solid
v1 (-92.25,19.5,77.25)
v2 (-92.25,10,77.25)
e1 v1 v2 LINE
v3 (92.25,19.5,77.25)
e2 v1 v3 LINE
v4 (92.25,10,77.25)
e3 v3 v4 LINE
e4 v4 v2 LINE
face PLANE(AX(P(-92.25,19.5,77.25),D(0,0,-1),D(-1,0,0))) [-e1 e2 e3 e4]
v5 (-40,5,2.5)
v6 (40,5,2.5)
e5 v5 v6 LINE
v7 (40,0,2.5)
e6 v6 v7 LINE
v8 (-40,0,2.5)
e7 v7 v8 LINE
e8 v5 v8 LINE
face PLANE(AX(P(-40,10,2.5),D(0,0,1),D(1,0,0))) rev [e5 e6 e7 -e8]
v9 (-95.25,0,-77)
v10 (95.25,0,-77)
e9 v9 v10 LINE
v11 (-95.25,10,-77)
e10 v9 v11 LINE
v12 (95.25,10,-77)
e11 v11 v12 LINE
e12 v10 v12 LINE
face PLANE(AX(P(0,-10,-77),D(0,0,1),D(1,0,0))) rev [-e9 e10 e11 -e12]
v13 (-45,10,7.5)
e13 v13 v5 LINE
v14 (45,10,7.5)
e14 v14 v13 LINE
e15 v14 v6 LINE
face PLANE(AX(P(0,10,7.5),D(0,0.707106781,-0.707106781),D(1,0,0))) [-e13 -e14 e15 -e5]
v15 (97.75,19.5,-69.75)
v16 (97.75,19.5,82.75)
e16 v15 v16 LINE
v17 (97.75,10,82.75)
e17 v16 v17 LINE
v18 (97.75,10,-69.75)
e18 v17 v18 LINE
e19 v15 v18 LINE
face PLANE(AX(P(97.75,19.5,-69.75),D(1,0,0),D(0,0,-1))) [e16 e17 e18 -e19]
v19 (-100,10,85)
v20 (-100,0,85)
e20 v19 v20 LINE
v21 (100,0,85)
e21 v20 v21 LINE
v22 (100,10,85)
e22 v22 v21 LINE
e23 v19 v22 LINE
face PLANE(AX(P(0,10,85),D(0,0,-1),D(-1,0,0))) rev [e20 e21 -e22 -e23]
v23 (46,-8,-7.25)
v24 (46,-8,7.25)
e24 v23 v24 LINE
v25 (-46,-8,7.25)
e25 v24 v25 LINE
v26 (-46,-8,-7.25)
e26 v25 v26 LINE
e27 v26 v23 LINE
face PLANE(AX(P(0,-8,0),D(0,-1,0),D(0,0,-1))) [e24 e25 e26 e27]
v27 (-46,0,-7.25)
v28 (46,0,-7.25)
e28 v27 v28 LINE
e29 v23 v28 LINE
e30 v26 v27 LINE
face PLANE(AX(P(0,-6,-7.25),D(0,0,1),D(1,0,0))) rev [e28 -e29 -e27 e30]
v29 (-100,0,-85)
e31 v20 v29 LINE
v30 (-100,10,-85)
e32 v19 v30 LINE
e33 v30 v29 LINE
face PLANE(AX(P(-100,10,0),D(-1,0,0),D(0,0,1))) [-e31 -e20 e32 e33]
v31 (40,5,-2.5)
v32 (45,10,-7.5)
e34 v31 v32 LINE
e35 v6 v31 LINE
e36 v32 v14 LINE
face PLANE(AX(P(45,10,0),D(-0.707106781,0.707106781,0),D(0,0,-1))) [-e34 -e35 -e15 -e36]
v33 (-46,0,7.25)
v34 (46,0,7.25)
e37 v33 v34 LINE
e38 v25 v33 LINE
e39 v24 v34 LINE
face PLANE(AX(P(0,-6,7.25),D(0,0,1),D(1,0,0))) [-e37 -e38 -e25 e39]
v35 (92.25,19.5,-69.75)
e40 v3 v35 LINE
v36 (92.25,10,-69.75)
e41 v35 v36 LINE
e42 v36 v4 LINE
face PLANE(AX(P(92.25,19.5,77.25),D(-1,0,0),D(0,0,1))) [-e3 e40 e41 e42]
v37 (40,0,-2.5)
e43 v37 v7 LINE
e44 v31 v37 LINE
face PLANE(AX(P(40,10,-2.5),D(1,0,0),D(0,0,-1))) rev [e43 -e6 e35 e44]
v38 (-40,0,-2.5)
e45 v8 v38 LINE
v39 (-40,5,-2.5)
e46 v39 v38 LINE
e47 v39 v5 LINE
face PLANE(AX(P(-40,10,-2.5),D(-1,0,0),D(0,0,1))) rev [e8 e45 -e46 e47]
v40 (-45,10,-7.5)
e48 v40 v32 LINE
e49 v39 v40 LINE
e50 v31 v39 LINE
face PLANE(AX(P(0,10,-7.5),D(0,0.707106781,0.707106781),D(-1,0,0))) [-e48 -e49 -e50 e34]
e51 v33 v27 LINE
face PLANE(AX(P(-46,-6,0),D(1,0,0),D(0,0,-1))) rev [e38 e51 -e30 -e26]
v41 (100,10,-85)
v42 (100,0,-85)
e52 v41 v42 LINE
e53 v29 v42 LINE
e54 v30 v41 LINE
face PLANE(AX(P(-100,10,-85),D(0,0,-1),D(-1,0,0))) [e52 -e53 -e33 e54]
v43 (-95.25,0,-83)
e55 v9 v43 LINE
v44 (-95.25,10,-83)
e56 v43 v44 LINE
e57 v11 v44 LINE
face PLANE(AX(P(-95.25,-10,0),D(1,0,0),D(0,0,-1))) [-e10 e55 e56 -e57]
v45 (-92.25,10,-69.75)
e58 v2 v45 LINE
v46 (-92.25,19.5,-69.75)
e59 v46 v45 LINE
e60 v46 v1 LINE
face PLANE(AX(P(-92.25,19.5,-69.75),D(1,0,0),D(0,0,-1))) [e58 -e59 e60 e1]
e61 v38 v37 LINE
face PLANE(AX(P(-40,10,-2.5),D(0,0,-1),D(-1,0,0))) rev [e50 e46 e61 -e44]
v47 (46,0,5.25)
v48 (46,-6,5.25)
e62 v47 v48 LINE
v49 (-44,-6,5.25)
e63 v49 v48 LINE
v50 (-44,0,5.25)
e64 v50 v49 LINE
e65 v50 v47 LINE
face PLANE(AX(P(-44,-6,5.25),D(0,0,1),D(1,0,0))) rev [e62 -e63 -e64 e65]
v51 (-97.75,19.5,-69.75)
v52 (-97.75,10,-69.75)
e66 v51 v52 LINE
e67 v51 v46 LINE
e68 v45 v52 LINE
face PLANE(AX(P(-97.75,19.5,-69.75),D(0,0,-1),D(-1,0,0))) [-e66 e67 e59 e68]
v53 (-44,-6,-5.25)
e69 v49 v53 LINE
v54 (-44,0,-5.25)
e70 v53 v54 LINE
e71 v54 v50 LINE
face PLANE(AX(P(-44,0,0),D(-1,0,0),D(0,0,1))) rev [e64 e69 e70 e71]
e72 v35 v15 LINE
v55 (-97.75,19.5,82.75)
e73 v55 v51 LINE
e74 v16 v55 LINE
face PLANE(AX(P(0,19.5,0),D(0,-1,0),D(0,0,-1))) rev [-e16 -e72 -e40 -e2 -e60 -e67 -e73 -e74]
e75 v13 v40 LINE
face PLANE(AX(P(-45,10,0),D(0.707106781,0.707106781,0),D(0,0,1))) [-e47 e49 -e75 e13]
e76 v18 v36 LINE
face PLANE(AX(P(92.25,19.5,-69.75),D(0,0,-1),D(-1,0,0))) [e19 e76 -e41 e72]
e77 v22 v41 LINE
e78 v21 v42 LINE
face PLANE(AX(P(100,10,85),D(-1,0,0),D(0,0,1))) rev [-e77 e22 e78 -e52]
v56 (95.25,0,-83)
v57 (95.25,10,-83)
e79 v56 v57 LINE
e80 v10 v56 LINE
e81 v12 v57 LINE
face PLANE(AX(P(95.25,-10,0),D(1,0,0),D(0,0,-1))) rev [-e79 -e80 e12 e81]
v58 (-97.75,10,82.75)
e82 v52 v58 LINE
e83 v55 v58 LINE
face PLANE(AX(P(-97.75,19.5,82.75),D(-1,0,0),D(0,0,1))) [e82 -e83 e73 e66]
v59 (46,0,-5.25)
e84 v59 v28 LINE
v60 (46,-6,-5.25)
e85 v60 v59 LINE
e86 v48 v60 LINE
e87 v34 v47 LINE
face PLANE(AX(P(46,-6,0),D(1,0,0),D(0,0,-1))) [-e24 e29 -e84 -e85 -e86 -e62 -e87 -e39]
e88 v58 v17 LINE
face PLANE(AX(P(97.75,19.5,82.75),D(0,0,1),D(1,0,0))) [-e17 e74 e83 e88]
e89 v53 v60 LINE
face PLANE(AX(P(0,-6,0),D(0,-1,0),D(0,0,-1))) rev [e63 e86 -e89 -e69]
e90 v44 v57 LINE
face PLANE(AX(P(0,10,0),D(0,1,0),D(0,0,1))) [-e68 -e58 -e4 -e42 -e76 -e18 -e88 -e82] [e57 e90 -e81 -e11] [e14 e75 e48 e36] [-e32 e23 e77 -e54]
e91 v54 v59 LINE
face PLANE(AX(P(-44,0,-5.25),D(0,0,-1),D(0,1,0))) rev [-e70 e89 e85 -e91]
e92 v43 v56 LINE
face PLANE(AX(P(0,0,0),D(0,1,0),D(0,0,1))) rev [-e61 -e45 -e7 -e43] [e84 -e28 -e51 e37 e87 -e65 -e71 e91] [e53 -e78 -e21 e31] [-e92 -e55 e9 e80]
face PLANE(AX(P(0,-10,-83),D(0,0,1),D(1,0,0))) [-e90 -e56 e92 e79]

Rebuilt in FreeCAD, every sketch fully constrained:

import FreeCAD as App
import Part
import Sketcher

V = App.Vector
Q = App.Units.Quantity


def edges_at(feature, points):
    """Names of the edges that pass closest to the given points."""
    edges = feature.Shape.Edges
    near = lambda p: min(range(len(edges)), key=lambda i: edges[i].distToShape(Part.Vertex(*p))[0])
    return sorted({f"Edge{near(p) + 1}" for p in points})

doc = App.newDocument("Part")
params = doc.addObject("Spreadsheet::Sheet", "Params")
for row, (alias, value) in enumerate([
    ("sketch1_width", "200 mm"),
    ("sketch1_height", "170 mm"),
    ("pad1_length", "10 mm"),
    ("sketch2_height", "147 mm"),
    ("sketch2_width", "5.5 mm"),
    ("sketch2_width2", "184.5 mm"),
    ("sketch2_height2", "152.5 mm"),
    ("pad2_length", "19.5 mm"),
    ("sketch3_height", "6 mm"),
    ("sketch3_width", "190.5 mm"),
    ("pocket1_length", "20 mm"),
    ("sketch4_width", "80 mm"),
    ("sketch4_height", "5 mm"),
    ("pocket2_length", "10 mm"),
    ("chamfer_size", "5 mm"),
    ("sketch5_width", "92 mm"),
    ("sketch5_width2", "86 mm"),
    ("sketch5_height", "14.5 mm"),
    ("sketch5_height2", "8.5 mm"),
    ("pad3_length", "6 mm"),
    ("sketch6_width", "92 mm"),
    ("sketch6_height", "14.5 mm"),
    ("pad4_length", "2 mm"),
    ("sketch7_width", "6 mm"),
    ("sketch7_height", "10.5 mm"),
    ("pocket3_length", "90 mm"),
], start=1):
    params.set(f"A{row}", alias)
    params.set(f"B{row}", "=" + value)
    params.setAlias(f"B{row}", alias)

body = doc.addObject("PartDesign::Body", "Body")

# Sketch on XZ plane
sketch1 = doc.addObject("Sketcher::SketchObject", "Sketch")
body.addObject(sketch1)
sketch1.AttachmentSupport = (doc.XZ_Plane, [""])
sketch1.MapMode = "FlatFace"
sketch1.addGeometry([
    Part.LineSegment(V(-100, -85, 0), V(-100, 85, 0)),
    Part.LineSegment(V(-100, 85, 0), V(100, 85, 0)),
    Part.LineSegment(V(100, 85, 0), V(100, -85, 0)),
    Part.LineSegment(V(100, -85, 0), V(-100, -85, 0)),
], False)
sketch1.addConstraint([
    Sketcher.Constraint("Coincident", 0, 2, 1, 1),
    Sketcher.Constraint("Coincident", 1, 2, 2, 1),
    Sketcher.Constraint("Coincident", 2, 2, 3, 1),
    Sketcher.Constraint("Coincident", 3, 2, 0, 1),
    Sketcher.Constraint("Vertical", 0),
    Sketcher.Constraint("Horizontal", 1),
    Sketcher.Constraint("Vertical", 2),
    Sketcher.Constraint("Horizontal", 3),
    Sketcher.Constraint("Symmetric", 0, 2, 2, 2, -1, 1),
    Sketcher.Constraint("DistanceX", 1, 1, 1, 2, Q("200 mm")),
    Sketcher.Constraint("DistanceY", 0, 1, 0, 2, Q("170 mm")),
])
sketch1.setExpression("Constraints[9]", "Params.sketch1_width")
sketch1.setExpression("Constraints[10]", "Params.sketch1_height")
pad1 = doc.addObject("PartDesign::Pad", "Pad")
body.addObject(pad1)
pad1.Profile = sketch1
pad1.setExpression("Length", "Params.pad1_length")
pad1.Reversed = True

# Sketch on XZ plane
sketch2 = doc.addObject("Sketcher::SketchObject", "Sketch001")
body.addObject(sketch2)
sketch2.AttachmentSupport = (doc.XZ_Plane, [""])
sketch2.MapMode = "FlatFace"
sketch2.addGeometry([
    Part.LineSegment(V(98, 83, 0), V(98, -70, 0)),  # 0
    Part.LineSegment(V(98, -70, 0), V(92, -70, 0)),  # 1
    Part.LineSegment(V(92, -70, 0), V(92, 77, 0)),  # 2
    Part.LineSegment(V(92, 77, 0), V(-92, 77, 0)),  # 3
    Part.LineSegment(V(-92, 77, 0), V(-92, -70, 0)),  # 4
    Part.LineSegment(V(-92, -70, 0), V(-98, -70, 0)),  # 5
    Part.LineSegment(V(-98, -70, 0), V(-98, 83, 0)),  # 6
    Part.LineSegment(V(-98, 83, 0), V(98, 83, 0)),  # 7
], False)
sketch2.addConstraint([
    Sketcher.Constraint("Coincident", 0, 2, 1, 1),
    Sketcher.Constraint("Coincident", 1, 2, 2, 1),
    Sketcher.Constraint("Coincident", 2, 2, 3, 1),
    Sketcher.Constraint("Coincident", 3, 2, 4, 1),
    Sketcher.Constraint("Coincident", 4, 2, 5, 1),
    Sketcher.Constraint("Coincident", 5, 2, 6, 1),
    Sketcher.Constraint("Coincident", 6, 2, 7, 1),
    Sketcher.Constraint("Coincident", 7, 2, 0, 1),
    Sketcher.Constraint("Vertical", 0),
    Sketcher.Constraint("Horizontal", 1),
    Sketcher.Constraint("Vertical", 2),
    Sketcher.Constraint("Horizontal", 3),
    Sketcher.Constraint("Vertical", 4),
    Sketcher.Constraint("Horizontal", 5),
    Sketcher.Constraint("Vertical", 6),
    Sketcher.Constraint("Horizontal", 7),
    Sketcher.Constraint("Symmetric", 1, 2, 4, 2, -2),
    Sketcher.Constraint("Equal", 1, 5),
    Sketcher.Constraint("DistanceY", 2, 1, 2, 2, Q("147 mm")),
    Sketcher.Constraint("DistanceX", 1, 2, 1, 1, Q("5.5 mm")),
    Sketcher.Constraint("DistanceX", 3, 2, 3, 1, Q("184.5 mm")),
    Sketcher.Constraint("DistanceY", 0, 2, 0, 1, Q("152.5 mm")),
    Sketcher.Constraint("DistanceY", 0, 2, -1, 1, Q("69.75 mm")),
])
sketch2.setExpression("Constraints[18]", "Params.sketch2_height")
sketch2.setExpression("Constraints[19]", "Params.sketch2_width")
sketch2.setExpression("Constraints[20]", "Params.sketch2_width2")
sketch2.setExpression("Constraints[21]", "Params.sketch2_height2")
pad2 = doc.addObject("PartDesign::Pad", "Pad001")
body.addObject(pad2)
pad2.Profile = sketch2
pad2.setExpression("Length", "Params.pad2_length")
pad2.Reversed = True

# Sketch on XZ plane
sketch3 = doc.addObject("Sketcher::SketchObject", "Sketch002")
body.addObject(sketch3)
sketch3.AttachmentSupport = (doc.XZ_Plane, [""])
sketch3.MapMode = "FlatFace"
sketch3.AttachmentOffset = App.Placement(V(0, 0, -10), App.Rotation())
sketch3.addGeometry([
    Part.LineSegment(V(-95, -83, 0), V(-95, -77, 0)),
    Part.LineSegment(V(-95, -77, 0), V(95, -77, 0)),
    Part.LineSegment(V(95, -77, 0), V(95, -83, 0)),
    Part.LineSegment(V(95, -83, 0), V(-95, -83, 0)),
], False)
sketch3.addConstraint([
    Sketcher.Constraint("Coincident", 0, 2, 1, 1),
    Sketcher.Constraint("Coincident", 1, 2, 2, 1),
    Sketcher.Constraint("Coincident", 2, 2, 3, 1),
    Sketcher.Constraint("Coincident", 3, 2, 0, 1),
    Sketcher.Constraint("Vertical", 0),
    Sketcher.Constraint("Horizontal", 1),
    Sketcher.Constraint("Vertical", 2),
    Sketcher.Constraint("Horizontal", 3),
    Sketcher.Constraint("DistanceY", 0, 1, 0, 2, Q("6 mm")),
    Sketcher.Constraint("DistanceX", 1, 1, 1, 2, Q("190.5 mm")),
    Sketcher.Constraint("DistanceY", 0, 2, -1, 1, Q("77 mm")),
    Sketcher.Constraint("DistanceX", 0, 2, -1, 1, Q("95.25 mm")),
])
sketch3.setExpression("Constraints[8]", "Params.sketch3_height")
sketch3.setExpression("Constraints[9]", "Params.sketch3_width")
pocket1 = doc.addObject("PartDesign::Pocket", "Pocket")
body.addObject(pocket1)
pocket1.Profile = sketch3
pocket1.setExpression("Length", "Params.pocket1_length")
pocket1.Reversed = True

# Sketch on XZ plane
sketch4 = doc.addObject("Sketcher::SketchObject", "Sketch003")
body.addObject(sketch4)
sketch4.AttachmentSupport = (doc.XZ_Plane, [""])
sketch4.MapMode = "FlatFace"
sketch4.addGeometry([
    Part.LineSegment(V(-40, 2, 0), V(-40, -2, 0)),
    Part.LineSegment(V(-40, -2, 0), V(40, -2, 0)),
    Part.LineSegment(V(40, -2, 0), V(40, 2, 0)),
    Part.LineSegment(V(40, 2, 0), V(-40, 2, 0)),
], False)
sketch4.addConstraint([
    Sketcher.Constraint("Coincident", 0, 2, 1, 1),
    Sketcher.Constraint("Coincident", 1, 2, 2, 1),
    Sketcher.Constraint("Coincident", 2, 2, 3, 1),
    Sketcher.Constraint("Coincident", 3, 2, 0, 1),
    Sketcher.Constraint("Vertical", 0),
    Sketcher.Constraint("Horizontal", 1),
    Sketcher.Constraint("Vertical", 2),
    Sketcher.Constraint("Horizontal", 3),
    Sketcher.Constraint("Symmetric", 0, 2, 2, 2, -1, 1),
    Sketcher.Constraint("DistanceX", 1, 1, 1, 2, Q("80 mm")),
    Sketcher.Constraint("DistanceY", 0, 2, 0, 1, Q("5 mm")),
])
sketch4.setExpression("Constraints[9]", "Params.sketch4_width")
sketch4.setExpression("Constraints[10]", "Params.sketch4_height")
pocket2 = doc.addObject("PartDesign::Pocket", "Pocket001")
body.addObject(pocket2)
pocket2.Profile = sketch4
pocket2.setExpression("Length", "Params.pocket2_length")
doc.recompute()

chamfer = doc.addObject("PartDesign::Chamfer", "Chamfer")
body.addObject(chamfer)
chamfer.Base = (pocket2, edges_at(pocket2, [
    (0, 10, -2.5),
    (-40, 10, 0),
    (0, 10, 2.5),
    (40, 10, 0),
]))
chamfer.setExpression("Size", "Params.chamfer_size")

# Sketch on XZ plane
sketch5 = doc.addObject("Sketcher::SketchObject", "Sketch004")
body.addObject(sketch5)
sketch5.AttachmentSupport = (doc.XZ_Plane, [""])
sketch5.MapMode = "FlatFace"
sketch5.addGeometry([
    Part.LineSegment(V(-46, 7, 0), V(-46, -7, 0)),  # 0
    Part.LineSegment(V(-46, -7, 0), V(46, -7, 0)),  # 1
    Part.LineSegment(V(46, -7, 0), V(46, 7, 0)),  # 2
    Part.LineSegment(V(46, 7, 0), V(-46, 7, 0)),  # 3
    Part.LineSegment(V(43, -4, 0), V(-43, -4, 0)),  # 4
    Part.LineSegment(V(-43, -4, 0), V(-43, 4, 0)),  # 5
    Part.LineSegment(V(-43, 4, 0), V(43, 4, 0)),  # 6
    Part.LineSegment(V(43, 4, 0), V(43, -4, 0)),  # 7
], False)
sketch5.addConstraint([
    Sketcher.Constraint("Coincident", 0, 2, 1, 1),
    Sketcher.Constraint("Coincident", 1, 2, 2, 1),
    Sketcher.Constraint("Coincident", 2, 2, 3, 1),
    Sketcher.Constraint("Coincident", 3, 2, 0, 1),
    Sketcher.Constraint("Coincident", 4, 2, 5, 1),
    Sketcher.Constraint("Coincident", 5, 2, 6, 1),
    Sketcher.Constraint("Coincident", 6, 2, 7, 1),
    Sketcher.Constraint("Coincident", 7, 2, 4, 1),
    Sketcher.Constraint("Vertical", 0),
    Sketcher.Constraint("Horizontal", 1),
    Sketcher.Constraint("Vertical", 2),
    Sketcher.Constraint("Horizontal", 3),
    Sketcher.Constraint("Horizontal", 4),
    Sketcher.Constraint("Vertical", 5),
    Sketcher.Constraint("Horizontal", 6),
    Sketcher.Constraint("Vertical", 7),
    Sketcher.Constraint("Symmetric", 0, 2, 2, 2, -1, 1),
    Sketcher.Constraint("Symmetric", 4, 2, 6, 2, -1, 1),
    Sketcher.Constraint("DistanceX", 1, 1, 1, 2, Q("92 mm")),
    Sketcher.Constraint("DistanceX", 4, 2, 4, 1, Q("86 mm")),
    Sketcher.Constraint("DistanceY", 0, 2, 0, 1, Q("14.5 mm")),
    Sketcher.Constraint("DistanceY", 5, 1, 5, 2, Q("8.5 mm")),
])
sketch5.setExpression("Constraints[18]", "Params.sketch5_width")
sketch5.setExpression("Constraints[19]", "Params.sketch5_width2")
sketch5.setExpression("Constraints[20]", "Params.sketch5_height")
sketch5.setExpression("Constraints[21]", "Params.sketch5_height2")
pad3 = doc.addObject("PartDesign::Pad", "Pad002")
body.addObject(pad3)
pad3.Profile = sketch5
pad3.setExpression("Length", "Params.pad3_length")

# Sketch on XZ plane
sketch6 = doc.addObject("Sketcher::SketchObject", "Sketch005")
body.addObject(sketch6)
sketch6.AttachmentSupport = (doc.XZ_Plane, [""])
sketch6.MapMode = "FlatFace"
sketch6.AttachmentOffset = App.Placement(V(0, 0, 6), App.Rotation())
sketch6.addGeometry([
    Part.LineSegment(V(-46, 7, 0), V(-46, -7, 0)),
    Part.LineSegment(V(-46, -7, 0), V(46, -7, 0)),
    Part.LineSegment(V(46, -7, 0), V(46, 7, 0)),
    Part.LineSegment(V(46, 7, 0), V(-46, 7, 0)),
], False)
sketch6.addConstraint([
    Sketcher.Constraint("Coincident", 0, 2, 1, 1),
    Sketcher.Constraint("Coincident", 1, 2, 2, 1),
    Sketcher.Constraint("Coincident", 2, 2, 3, 1),
    Sketcher.Constraint("Coincident", 3, 2, 0, 1),
    Sketcher.Constraint("Vertical", 0),
    Sketcher.Constraint("Horizontal", 1),
    Sketcher.Constraint("Vertical", 2),
    Sketcher.Constraint("Horizontal", 3),
    Sketcher.Constraint("Symmetric", 0, 2, 2, 2, -1, 1),
    Sketcher.Constraint("DistanceX", 1, 1, 1, 2, Q("92 mm")),
    Sketcher.Constraint("DistanceY", 0, 2, 0, 1, Q("14.5 mm")),
])
sketch6.setExpression("Constraints[9]", "Params.sketch6_width")
sketch6.setExpression("Constraints[10]", "Params.sketch6_height")
pad4 = doc.addObject("PartDesign::Pad", "Pad003")
body.addObject(pad4)
pad4.Profile = sketch6
pad4.setExpression("Length", "Params.pad4_length")

# Sketch on YZ plane
sketch7 = doc.addObject("Sketcher::SketchObject", "Sketch006")
body.addObject(sketch7)
sketch7.AttachmentSupport = (doc.YZ_Plane, [""])
sketch7.MapMode = "FlatFace"
sketch7.AttachmentOffset = App.Placement(V(0, 0, 46), App.Rotation())
sketch7.addGeometry([
    Part.LineSegment(V(-6, -5, 0), V(0, -5, 0)),
    Part.LineSegment(V(0, -5, 0), V(0, 5, 0)),
    Part.LineSegment(V(0, 5, 0), V(-6, 5, 0)),
    Part.LineSegment(V(-6, 5, 0), V(-6, -5, 0)),
], False)
sketch7.addConstraint([
    Sketcher.Constraint("Coincident", 0, 2, 1, 1),
    Sketcher.Constraint("Coincident", 1, 2, 2, 1),
    Sketcher.Constraint("Coincident", 2, 2, 3, 1),
    Sketcher.Constraint("Coincident", 3, 2, 0, 1),
    Sketcher.Constraint("Horizontal", 0),
    Sketcher.Constraint("Vertical", 1),
    Sketcher.Constraint("Horizontal", 2),
    Sketcher.Constraint("Vertical", 3),
    Sketcher.Constraint("Symmetric", 0, 2, 1, 2, -1, 1),
    Sketcher.Constraint("DistanceX", 0, 1, 0, 2, Q("6 mm")),
    Sketcher.Constraint("DistanceY", 1, 1, 1, 2, Q("10.5 mm")),
])
sketch7.setExpression("Constraints[9]", "Params.sketch7_width")
sketch7.setExpression("Constraints[10]", "Params.sketch7_height")
pocket3 = doc.addObject("PartDesign::Pocket", "Pocket002")
body.addObject(pocket3)
pocket3.Profile = sketch7
pocket3.setExpression("Length", "Params.pocket3_length")

doc.recompute()
